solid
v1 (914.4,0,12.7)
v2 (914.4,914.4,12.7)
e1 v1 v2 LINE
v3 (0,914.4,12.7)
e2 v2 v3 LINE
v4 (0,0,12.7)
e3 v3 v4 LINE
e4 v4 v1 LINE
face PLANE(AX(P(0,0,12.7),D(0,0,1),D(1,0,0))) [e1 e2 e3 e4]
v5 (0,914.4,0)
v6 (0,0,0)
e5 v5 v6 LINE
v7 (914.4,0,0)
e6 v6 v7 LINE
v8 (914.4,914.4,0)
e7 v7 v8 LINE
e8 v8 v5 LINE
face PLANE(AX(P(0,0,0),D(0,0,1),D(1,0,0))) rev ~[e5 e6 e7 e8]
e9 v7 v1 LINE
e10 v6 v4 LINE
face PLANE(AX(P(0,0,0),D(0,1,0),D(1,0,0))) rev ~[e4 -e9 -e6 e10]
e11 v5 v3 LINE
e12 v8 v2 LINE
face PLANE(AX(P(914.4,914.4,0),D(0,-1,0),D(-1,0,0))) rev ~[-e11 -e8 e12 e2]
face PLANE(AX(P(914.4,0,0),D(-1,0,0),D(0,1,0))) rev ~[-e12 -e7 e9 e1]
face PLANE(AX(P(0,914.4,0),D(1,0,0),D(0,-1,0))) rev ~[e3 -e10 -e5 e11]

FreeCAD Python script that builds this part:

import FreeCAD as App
import Part
import Sketcher

V = App.Vector
Q = App.Units.Quantity

doc = App.newDocument("Part")
body = doc.addObject("PartDesign::Body", "Body")

# Sketch on XY plane
sketch1 = body.newObject("Sketcher::SketchObject", "Sketch")
sketch1.AttachmentSupport = (doc.getObject("XY_Plane"), [""])
sketch1.MapMode = "FlatFace"
sketch1.addGeometry([
    Part.LineSegment(V(0, 914.4, 0), V(0, 0, 0)),
    Part.LineSegment(V(0, 0, 0), V(914.4, 0, 0)),
    Part.LineSegment(V(914.4, 0, 0), V(914.4, 914.4, 0)),
    Part.LineSegment(V(914.4, 914.4, 0), V(0, 914.4, 0)),
], False)
sketch1.addConstraint([
    Sketcher.Constraint("Coincident", 0, 2, 1, 1),
    Sketcher.Constraint("Coincident", 1, 2, 2, 1),
    Sketcher.Constraint("Coincident", 2, 2, 3, 1),
    Sketcher.Constraint("Coincident", 3, 2, 0, 1),
    Sketcher.Constraint("Vertical", 0),
    Sketcher.Constraint("Horizontal", 1),
    Sketcher.Constraint("Vertical", 2),
    Sketcher.Constraint("Horizontal", 3),
    Sketcher.Constraint("Coincident", 0, 2, -1, 1),
    Sketcher.Constraint("Equal", 3, 0),
    Sketcher.Constraint("DistanceX", 1, 1, 1, 2, Q("36 in")),
])
pad1 = body.newObject("PartDesign::Pad", "Pad")
pad1.Profile = sketch1
pad1.Length = Q("0.5 in")

doc.recompute()
